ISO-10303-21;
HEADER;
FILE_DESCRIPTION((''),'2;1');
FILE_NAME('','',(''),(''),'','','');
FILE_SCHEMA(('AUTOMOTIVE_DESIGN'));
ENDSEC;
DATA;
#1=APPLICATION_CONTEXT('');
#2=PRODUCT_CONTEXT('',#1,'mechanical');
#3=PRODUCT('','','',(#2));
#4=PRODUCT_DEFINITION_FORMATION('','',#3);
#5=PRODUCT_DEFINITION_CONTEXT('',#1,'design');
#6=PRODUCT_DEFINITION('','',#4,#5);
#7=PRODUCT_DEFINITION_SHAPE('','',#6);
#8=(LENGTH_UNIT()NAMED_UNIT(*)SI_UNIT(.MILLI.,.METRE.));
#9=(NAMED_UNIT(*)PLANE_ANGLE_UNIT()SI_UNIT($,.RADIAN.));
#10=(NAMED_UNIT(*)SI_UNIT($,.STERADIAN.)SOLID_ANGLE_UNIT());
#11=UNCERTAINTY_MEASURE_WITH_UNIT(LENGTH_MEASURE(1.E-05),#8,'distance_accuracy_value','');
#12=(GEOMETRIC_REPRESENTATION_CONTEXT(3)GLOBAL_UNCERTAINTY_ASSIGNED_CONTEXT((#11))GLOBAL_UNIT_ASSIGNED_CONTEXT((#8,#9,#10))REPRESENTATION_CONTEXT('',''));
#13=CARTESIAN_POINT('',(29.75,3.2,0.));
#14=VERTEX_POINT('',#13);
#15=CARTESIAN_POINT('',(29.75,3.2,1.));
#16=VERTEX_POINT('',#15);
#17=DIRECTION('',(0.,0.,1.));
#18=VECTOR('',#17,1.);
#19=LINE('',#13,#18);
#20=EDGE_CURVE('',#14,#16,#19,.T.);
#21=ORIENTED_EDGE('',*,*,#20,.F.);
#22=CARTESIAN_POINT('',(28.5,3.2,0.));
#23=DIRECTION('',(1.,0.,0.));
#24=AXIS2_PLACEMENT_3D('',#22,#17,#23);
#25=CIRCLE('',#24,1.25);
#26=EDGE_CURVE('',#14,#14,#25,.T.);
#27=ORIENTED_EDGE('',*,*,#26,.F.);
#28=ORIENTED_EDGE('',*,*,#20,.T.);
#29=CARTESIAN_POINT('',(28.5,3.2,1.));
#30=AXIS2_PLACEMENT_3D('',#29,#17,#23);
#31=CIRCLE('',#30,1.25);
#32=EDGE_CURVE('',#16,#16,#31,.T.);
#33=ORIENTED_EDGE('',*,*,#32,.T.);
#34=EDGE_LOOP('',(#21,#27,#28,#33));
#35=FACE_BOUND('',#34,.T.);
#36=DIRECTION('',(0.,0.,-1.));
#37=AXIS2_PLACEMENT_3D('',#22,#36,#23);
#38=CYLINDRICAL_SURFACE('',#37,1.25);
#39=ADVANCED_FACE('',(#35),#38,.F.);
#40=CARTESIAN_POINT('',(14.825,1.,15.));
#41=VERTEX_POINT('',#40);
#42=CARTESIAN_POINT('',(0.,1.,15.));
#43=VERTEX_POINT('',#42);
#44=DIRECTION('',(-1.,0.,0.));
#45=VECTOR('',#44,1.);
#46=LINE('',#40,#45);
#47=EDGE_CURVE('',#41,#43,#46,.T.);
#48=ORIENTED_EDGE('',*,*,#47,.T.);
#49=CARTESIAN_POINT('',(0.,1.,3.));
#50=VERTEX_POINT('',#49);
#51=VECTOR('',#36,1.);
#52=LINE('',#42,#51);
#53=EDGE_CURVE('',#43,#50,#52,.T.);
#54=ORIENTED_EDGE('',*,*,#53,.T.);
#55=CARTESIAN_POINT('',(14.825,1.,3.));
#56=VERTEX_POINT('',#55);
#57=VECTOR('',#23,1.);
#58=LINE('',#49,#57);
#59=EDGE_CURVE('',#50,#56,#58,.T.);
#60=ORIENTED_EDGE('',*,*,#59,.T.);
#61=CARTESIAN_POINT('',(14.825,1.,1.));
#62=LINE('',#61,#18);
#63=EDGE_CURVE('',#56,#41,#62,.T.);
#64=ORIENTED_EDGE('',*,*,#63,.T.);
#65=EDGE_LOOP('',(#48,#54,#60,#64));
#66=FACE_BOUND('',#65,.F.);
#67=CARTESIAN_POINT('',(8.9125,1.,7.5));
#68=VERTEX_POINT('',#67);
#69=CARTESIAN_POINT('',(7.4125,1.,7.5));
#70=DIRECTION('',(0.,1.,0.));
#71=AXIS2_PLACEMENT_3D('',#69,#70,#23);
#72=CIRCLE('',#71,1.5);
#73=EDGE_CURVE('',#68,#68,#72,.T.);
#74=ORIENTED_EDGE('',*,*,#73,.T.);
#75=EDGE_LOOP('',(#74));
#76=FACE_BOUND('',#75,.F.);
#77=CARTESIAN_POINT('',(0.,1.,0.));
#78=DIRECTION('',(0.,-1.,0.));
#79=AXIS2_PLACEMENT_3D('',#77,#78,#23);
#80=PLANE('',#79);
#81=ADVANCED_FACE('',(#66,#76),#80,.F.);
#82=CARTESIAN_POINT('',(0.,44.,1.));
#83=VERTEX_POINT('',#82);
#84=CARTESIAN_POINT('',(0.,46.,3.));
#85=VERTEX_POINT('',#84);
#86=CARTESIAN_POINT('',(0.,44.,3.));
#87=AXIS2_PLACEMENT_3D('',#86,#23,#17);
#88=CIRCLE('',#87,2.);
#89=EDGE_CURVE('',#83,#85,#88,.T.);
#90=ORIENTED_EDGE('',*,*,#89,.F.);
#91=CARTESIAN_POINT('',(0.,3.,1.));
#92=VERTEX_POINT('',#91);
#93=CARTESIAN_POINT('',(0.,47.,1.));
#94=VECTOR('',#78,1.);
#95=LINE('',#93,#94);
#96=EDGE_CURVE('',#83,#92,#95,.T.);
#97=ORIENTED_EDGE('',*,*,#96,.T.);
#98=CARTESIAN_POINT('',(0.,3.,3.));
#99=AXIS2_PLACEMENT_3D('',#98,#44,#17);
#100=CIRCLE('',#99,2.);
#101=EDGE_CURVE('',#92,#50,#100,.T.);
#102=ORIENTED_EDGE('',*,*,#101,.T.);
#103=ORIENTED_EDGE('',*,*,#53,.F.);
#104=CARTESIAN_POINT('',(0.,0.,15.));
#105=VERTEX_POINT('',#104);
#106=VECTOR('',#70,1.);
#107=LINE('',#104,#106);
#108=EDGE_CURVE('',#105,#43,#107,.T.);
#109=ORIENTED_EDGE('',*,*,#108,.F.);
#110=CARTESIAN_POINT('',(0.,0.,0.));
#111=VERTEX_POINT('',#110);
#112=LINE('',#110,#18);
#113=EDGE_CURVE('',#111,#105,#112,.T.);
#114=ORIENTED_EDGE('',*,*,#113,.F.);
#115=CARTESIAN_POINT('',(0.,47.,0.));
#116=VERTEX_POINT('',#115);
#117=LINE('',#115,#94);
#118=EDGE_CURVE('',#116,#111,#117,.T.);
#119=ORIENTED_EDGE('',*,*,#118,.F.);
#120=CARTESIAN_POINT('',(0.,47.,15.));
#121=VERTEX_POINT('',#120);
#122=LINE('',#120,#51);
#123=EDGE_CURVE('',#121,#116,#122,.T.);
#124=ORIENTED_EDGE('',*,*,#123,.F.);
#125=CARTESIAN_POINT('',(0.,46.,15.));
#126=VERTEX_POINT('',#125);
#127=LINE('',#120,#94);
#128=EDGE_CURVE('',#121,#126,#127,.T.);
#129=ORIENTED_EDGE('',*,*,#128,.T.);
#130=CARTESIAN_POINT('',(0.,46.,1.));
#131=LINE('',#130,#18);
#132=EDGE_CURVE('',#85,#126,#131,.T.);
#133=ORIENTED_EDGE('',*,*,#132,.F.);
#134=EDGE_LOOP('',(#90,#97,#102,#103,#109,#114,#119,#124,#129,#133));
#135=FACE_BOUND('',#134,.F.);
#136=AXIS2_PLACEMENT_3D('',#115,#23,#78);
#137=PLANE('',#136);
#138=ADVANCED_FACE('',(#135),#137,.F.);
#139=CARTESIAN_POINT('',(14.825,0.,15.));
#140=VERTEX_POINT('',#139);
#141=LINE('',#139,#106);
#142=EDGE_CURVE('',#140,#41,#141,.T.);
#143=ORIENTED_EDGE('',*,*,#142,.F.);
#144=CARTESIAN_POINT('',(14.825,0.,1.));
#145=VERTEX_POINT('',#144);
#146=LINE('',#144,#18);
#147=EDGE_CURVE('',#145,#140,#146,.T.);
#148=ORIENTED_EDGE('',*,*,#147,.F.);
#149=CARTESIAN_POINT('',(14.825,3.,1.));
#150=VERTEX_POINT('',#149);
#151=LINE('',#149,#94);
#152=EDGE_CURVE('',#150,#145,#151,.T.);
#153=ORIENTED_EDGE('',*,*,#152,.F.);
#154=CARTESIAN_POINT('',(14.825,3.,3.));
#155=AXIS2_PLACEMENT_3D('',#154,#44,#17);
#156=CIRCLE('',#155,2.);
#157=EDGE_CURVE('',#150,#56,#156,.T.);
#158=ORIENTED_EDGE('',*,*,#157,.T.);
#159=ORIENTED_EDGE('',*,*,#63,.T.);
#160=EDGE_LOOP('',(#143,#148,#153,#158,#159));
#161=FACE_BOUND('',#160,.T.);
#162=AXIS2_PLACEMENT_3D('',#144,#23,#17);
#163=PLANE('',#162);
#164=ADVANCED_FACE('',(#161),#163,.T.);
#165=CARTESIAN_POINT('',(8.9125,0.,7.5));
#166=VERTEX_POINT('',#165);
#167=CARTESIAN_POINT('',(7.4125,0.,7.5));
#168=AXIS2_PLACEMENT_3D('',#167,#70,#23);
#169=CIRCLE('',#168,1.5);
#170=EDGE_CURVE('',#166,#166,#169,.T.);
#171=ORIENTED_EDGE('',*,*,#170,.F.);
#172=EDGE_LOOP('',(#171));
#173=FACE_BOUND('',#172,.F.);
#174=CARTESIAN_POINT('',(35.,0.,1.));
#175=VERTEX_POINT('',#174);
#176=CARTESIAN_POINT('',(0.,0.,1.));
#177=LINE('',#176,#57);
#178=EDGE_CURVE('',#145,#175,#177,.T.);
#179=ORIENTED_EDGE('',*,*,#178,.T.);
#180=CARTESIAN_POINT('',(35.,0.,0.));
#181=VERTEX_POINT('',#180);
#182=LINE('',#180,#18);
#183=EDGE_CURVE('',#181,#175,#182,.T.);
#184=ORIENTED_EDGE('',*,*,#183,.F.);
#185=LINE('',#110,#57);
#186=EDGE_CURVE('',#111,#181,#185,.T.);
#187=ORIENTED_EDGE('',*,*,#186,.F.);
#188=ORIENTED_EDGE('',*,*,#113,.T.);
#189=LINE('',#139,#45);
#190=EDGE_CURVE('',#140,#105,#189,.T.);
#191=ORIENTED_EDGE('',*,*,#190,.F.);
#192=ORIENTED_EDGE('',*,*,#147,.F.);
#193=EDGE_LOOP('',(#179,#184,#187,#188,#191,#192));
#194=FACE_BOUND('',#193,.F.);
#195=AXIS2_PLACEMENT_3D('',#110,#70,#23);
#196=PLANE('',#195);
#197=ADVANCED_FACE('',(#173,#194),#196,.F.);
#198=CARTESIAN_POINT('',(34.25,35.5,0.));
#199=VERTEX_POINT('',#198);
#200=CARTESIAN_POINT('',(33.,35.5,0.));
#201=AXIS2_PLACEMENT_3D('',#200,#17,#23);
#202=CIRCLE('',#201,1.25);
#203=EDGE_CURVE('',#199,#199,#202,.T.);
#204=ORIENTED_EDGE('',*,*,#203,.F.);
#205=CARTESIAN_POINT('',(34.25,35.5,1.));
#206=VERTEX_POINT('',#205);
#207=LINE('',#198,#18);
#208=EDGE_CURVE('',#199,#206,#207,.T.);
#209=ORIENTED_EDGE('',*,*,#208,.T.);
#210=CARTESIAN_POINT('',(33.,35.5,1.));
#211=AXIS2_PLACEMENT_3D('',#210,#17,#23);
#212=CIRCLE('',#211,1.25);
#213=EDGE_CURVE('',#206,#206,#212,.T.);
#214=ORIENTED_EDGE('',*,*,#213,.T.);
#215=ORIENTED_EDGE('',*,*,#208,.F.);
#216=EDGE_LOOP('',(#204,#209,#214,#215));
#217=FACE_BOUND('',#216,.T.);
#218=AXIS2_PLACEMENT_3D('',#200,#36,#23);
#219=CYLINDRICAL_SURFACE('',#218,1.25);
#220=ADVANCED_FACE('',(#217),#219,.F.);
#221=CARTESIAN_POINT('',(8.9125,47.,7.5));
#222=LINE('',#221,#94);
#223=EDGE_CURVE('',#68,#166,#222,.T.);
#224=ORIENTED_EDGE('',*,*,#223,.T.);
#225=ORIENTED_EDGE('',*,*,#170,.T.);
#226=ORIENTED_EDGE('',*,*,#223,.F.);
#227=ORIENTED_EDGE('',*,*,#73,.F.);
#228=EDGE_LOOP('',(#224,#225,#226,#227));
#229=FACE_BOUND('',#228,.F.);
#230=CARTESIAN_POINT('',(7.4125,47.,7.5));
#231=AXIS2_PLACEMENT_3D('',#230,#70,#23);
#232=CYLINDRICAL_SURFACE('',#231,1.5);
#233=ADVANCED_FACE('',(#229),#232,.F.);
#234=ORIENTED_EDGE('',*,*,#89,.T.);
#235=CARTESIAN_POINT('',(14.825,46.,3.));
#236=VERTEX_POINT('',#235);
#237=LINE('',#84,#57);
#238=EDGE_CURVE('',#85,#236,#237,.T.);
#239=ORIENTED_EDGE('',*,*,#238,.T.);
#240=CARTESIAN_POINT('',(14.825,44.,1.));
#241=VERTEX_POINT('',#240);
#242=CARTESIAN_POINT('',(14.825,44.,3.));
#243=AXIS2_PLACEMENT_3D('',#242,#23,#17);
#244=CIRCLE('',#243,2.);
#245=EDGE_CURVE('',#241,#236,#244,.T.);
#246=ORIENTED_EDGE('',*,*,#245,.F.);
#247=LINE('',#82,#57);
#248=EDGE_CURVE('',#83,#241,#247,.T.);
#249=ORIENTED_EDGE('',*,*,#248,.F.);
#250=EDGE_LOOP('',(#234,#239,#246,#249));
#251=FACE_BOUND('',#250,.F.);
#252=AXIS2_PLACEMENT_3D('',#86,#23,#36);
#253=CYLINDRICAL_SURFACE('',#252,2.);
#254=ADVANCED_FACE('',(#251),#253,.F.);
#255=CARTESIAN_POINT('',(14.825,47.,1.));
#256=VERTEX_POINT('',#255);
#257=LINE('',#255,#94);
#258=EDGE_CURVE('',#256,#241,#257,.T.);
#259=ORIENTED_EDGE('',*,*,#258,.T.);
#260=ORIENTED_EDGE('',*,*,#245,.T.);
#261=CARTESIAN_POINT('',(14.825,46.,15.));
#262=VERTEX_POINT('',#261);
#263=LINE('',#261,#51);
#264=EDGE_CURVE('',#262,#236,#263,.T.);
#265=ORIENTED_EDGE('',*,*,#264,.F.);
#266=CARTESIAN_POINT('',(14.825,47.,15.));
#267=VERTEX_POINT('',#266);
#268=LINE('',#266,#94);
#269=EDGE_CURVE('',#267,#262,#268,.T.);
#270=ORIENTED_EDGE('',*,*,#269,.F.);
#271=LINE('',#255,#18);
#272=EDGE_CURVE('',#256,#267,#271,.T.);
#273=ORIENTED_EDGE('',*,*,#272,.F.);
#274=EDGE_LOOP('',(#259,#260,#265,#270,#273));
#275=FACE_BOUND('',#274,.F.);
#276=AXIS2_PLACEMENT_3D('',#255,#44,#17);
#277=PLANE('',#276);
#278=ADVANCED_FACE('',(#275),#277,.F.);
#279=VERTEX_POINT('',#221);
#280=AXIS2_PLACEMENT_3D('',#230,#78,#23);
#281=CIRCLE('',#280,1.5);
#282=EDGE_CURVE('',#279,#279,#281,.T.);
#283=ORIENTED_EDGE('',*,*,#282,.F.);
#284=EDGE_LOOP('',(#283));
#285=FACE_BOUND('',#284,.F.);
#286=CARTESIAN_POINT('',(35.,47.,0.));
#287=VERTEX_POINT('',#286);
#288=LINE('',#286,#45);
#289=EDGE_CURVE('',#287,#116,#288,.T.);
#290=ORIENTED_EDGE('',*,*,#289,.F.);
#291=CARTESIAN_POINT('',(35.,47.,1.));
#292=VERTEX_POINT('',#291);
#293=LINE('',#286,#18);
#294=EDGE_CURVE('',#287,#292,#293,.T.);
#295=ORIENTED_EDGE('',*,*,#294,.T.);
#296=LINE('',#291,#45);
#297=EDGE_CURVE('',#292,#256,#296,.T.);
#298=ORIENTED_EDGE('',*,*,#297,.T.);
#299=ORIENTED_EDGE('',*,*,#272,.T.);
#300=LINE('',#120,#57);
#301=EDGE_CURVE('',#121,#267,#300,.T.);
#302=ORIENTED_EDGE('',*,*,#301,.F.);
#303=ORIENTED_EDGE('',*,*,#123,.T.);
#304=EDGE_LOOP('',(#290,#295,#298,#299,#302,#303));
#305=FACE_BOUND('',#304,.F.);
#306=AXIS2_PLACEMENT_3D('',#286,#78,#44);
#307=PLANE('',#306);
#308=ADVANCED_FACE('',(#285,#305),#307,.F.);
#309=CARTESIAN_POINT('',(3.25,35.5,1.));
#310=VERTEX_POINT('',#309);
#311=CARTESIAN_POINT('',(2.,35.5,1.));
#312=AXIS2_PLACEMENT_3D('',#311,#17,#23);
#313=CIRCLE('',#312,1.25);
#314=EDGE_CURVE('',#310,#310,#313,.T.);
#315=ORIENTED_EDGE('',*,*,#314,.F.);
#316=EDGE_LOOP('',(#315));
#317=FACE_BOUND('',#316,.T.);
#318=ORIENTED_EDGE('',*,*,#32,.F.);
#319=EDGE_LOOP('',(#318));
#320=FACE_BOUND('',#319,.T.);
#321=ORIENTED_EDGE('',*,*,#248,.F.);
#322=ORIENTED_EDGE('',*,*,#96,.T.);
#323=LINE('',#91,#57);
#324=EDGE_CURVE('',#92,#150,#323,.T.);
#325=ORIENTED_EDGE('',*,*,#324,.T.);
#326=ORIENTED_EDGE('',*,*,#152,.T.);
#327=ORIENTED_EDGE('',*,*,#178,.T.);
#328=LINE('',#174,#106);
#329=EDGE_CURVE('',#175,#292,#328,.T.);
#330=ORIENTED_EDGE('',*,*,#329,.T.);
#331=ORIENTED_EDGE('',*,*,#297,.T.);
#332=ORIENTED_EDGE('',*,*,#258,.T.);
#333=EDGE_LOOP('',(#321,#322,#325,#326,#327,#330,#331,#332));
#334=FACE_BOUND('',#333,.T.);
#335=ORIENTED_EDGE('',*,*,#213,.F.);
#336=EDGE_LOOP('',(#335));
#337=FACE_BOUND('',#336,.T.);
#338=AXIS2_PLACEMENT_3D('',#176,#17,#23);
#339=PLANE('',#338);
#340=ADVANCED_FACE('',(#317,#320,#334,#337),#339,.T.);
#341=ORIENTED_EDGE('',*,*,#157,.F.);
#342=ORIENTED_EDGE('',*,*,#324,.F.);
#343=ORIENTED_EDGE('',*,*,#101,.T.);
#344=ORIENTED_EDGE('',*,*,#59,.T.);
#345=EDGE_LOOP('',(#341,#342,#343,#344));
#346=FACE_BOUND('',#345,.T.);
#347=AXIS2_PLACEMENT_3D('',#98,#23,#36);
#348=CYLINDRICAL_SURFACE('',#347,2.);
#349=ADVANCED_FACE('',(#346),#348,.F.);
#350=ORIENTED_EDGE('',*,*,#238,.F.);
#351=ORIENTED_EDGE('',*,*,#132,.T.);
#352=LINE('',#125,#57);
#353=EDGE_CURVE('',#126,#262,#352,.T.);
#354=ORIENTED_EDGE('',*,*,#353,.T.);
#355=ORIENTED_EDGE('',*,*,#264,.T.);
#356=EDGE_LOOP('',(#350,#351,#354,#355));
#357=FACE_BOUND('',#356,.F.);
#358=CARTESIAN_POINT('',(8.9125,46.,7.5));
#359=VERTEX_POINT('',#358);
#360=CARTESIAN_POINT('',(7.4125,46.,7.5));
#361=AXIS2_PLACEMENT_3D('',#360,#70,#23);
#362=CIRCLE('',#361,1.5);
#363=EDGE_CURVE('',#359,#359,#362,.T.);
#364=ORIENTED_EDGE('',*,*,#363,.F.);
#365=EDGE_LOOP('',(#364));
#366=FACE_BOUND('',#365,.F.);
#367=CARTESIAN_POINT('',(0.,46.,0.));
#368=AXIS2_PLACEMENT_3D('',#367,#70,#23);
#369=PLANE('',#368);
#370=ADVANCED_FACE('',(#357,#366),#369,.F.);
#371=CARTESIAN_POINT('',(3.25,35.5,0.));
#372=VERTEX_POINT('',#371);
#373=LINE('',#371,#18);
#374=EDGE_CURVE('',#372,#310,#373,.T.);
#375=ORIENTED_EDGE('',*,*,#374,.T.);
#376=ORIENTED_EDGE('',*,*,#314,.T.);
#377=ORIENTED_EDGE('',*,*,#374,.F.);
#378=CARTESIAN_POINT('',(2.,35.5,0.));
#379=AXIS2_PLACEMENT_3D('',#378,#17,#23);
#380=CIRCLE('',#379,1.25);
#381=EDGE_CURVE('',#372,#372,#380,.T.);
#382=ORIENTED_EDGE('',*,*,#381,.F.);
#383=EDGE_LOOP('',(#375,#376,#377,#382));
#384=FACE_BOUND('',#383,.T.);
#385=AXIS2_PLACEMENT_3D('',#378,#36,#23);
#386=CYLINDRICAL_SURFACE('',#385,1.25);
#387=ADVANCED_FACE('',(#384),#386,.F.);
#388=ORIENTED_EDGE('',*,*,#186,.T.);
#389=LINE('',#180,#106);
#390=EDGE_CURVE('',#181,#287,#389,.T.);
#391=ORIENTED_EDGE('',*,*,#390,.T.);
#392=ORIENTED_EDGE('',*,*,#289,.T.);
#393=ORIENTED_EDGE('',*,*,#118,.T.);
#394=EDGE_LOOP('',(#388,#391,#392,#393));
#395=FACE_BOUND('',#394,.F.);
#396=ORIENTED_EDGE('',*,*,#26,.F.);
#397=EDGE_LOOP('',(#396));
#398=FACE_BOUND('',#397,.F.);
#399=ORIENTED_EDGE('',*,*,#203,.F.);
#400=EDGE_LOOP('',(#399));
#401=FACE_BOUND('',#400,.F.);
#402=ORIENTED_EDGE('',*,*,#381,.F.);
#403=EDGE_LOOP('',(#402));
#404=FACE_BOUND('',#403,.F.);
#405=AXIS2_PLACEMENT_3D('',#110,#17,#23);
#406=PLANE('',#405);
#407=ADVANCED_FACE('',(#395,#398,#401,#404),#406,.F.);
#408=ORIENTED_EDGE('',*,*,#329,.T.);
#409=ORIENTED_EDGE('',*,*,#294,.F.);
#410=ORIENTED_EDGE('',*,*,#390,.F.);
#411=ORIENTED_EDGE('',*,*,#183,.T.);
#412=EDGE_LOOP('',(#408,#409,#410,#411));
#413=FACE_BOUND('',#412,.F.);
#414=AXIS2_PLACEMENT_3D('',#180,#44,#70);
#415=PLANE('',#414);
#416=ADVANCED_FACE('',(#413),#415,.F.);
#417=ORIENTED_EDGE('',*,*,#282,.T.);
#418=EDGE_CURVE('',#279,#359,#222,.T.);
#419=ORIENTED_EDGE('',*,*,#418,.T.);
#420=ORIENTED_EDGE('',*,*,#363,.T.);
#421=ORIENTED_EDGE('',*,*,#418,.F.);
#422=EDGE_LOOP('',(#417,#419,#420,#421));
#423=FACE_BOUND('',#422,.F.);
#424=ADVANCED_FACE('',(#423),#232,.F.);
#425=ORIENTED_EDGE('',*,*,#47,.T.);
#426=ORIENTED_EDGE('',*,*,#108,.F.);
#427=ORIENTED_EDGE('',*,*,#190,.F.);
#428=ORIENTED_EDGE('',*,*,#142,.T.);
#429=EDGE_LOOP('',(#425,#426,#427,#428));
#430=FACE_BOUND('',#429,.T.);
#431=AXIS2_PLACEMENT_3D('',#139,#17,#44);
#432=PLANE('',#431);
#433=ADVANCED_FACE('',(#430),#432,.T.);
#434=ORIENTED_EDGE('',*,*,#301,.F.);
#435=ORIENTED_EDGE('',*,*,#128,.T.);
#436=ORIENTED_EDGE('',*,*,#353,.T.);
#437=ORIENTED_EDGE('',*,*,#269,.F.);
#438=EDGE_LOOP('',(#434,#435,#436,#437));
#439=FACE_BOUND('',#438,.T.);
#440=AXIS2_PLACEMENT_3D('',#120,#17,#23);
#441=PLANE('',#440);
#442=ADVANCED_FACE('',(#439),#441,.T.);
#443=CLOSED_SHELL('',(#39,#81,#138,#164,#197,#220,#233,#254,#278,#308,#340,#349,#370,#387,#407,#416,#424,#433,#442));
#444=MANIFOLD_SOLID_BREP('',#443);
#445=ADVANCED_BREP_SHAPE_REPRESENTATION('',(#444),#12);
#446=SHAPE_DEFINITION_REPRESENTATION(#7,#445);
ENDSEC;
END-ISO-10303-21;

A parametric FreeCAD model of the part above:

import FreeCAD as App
import Part
import Sketcher

V = App.Vector
Q = App.Units.Quantity


def edges_at(feature, points):
    """Names of the edges that pass closest to the given points."""
    edges = feature.Shape.Edges
    near = lambda p: min(range(len(edges)), key=lambda i: edges[i].distToShape(Part.Vertex(*p))[0])
    return sorted({f"Edge{near(p) + 1}" for p in points})


def add_polygon(sketch, points):
    """Adds a closed chain of lines whose ends are joined by coincident constraints."""
    first, n = sketch.GeometryCount, len(points)
    for a, b in zip(points, points[1:] + points[:1]):
        sketch.addGeometry(Part.LineSegment(App.Vector(*a, 0), App.Vector(*b, 0)), False)
    for i in range(n):
        sketch.addConstraint(Sketcher.Constraint("Coincident", first + i, 2, first + (i + 1) % n, 1))

doc = App.newDocument("Part")
body = doc.addObject("PartDesign::Body", "Body")

# Sketch on XY plane
sketch1 = doc.addObject("Sketcher::SketchObject", "Sketch")
body.addObject(sketch1)
sketch1.AttachmentSupport = (doc.XY_Plane, [""])
sketch1.MapMode = "FlatFace"
add_polygon(sketch1, [(0, 47), (0, 0), (35, 0), (35, 47)])  # lines 0-3
sketch1.addGeometry(Part.Circle(V(28.5, 3.2, 0), V(0, 0, 1), 1.2), False)  # 4
sketch1.addGeometry(Part.Circle(V(2, 35.5, 0), V(0, 0, 1), 1.2), False)  # 5
sketch1.addGeometry(Part.Circle(V(33, 35.5, 0), V(0, 0, 1), 1.2), False)  # 6
sketch1.addConstraint(Sketcher.Constraint("Vertical", 0))
sketch1.addConstraint(Sketcher.Constraint("Horizontal", 1))
sketch1.addConstraint(Sketcher.Constraint("Vertical", 2))
sketch1.addConstraint(Sketcher.Constraint("Horizontal", 3))
sketch1.addConstraint(Sketcher.Constraint("Coincident", 0, 2, -1, 1))
sketch1.addConstraint(Sketcher.Constraint("Equal", 4, 5))
sketch1.addConstraint(Sketcher.Constraint("Equal", 5, 6))
sketch1.addConstraint(Sketcher.Constraint("Horizontal", 5, 3, 6, 3))
sketch1.addConstraint(Sketcher.Constraint("Diameter", 4, Q("2.5 mm")))
sketch1.addConstraint(Sketcher.Constraint("DistanceX", 1, 1, 1, 2, Q("35 mm")))
sketch1.addConstraint(Sketcher.Constraint("DistanceY", 0, 2, 0, 1, Q("47 mm")))
sketch1.addConstraint(Sketcher.Constraint("DistanceX", -1, 1, 5, 3, Q("2 mm")))
sketch1.addConstraint(Sketcher.Constraint("DistanceX", 6, 3, 1, 2, Q("2 mm")))
sketch1.addConstraint(Sketcher.Constraint("DistanceY", -1, 1, 4, 3, Q("3.2 mm")))
sketch1.addConstraint(Sketcher.Constraint("DistanceX", 4, 3, 1, 2, Q("6.5 mm")))
sketch1.addConstraint(Sketcher.Constraint("DistanceY", 6, 3, 2, 2, Q("11.5 mm")))
pad1 = doc.addObject("PartDesign::Pad", "Pad")
body.addObject(pad1)
pad1.Profile = sketch1
pad1.Length = 1

# Sketch on XZ plane
sketch2 = doc.addObject("Sketcher::SketchObject", "Sketch001")
body.addObject(sketch2)
sketch2.AttachmentSupport = (doc.XZ_Plane, [""])
sketch2.MapMode = "FlatFace"
add_polygon(sketch2, [(0, 1), (15, 1), (15, 15), (0, 15)])  # lines 0-3
sketch2.addConstraint(Sketcher.Constraint("Horizontal", 0))
sketch2.addConstraint(Sketcher.Constraint("Vertical", 1))
sketch2.addConstraint(Sketcher.Constraint("Horizontal", 2))
sketch2.addConstraint(Sketcher.Constraint("Vertical", 3))
sketch2.addConstraint(Sketcher.Constraint("PointOnObject", 2, 2, -2))
sketch2.addConstraint(Sketcher.Constraint("DistanceY", 1, 1, 1, 2, Q("14 mm")))
sketch2.addConstraint(Sketcher.Constraint("DistanceX", 0, 1, 0, 2, Q("14.825 mm")))
sketch2.addConstraint(Sketcher.Constraint("DistanceY", -1, 1, 0, 2, Q("1 mm")))
pad2 = doc.addObject("PartDesign::Pad", "Pad001")
body.addObject(pad2)
pad2.Profile = sketch2
pad2.Length = 1
pad2.Reversed = True
doc.recompute()

fillet = doc.addObject("PartDesign::Fillet", "Fillet")
body.addObject(fillet)
fillet.Base = (pad2, edges_at(pad2, [(7.412, 1, 1)]))
fillet.Radius = 2

# Sketch on XZ plane
sketch3 = doc.addObject("Sketcher::SketchObject", "Sketch002")
body.addObject(sketch3)
sketch3.AttachmentSupport = (doc.XZ_Plane, [""])
sketch3.MapMode = "FlatFace"
sketch3.AttachmentOffset = App.Placement(V(0, 0, -47), App.Rotation())
add_polygon(sketch3, [(15, 1), (0, 1), (0, 15), (15, 15)])  # lines 0-3
sketch3.addConstraint(Sketcher.Constraint("Horizontal", 0))
sketch3.addConstraint(Sketcher.Constraint("Vertical", 1))
sketch3.addConstraint(Sketcher.Constraint("Horizontal", 2))
sketch3.addConstraint(Sketcher.Constraint("Vertical", 3))
sketch3.addConstraint(Sketcher.Constraint("PointOnObject", 0, 2, -2))
sketch3.addConstraint(Sketcher.Constraint("DistanceY", 1, 1, 1, 2, Q("14 mm")))
sketch3.addConstraint(Sketcher.Constraint("DistanceY", -1, 1, 0, 2, Q("1 mm")))
sketch3.addConstraint(Sketcher.Constraint("DistanceX", 0, 2, 0, 1, Q("14.825 mm")))
pad3 = doc.addObject("PartDesign::Pad", "Pad002")
body.addObject(pad3)
pad3.Profile = sketch3
pad3.Length = 1
doc.recompute()

fillet2 = doc.addObject("PartDesign::Fillet", "Fillet001")
body.addObject(fillet2)
fillet2.Base = (pad3, edges_at(pad3, [(7.412, 46, 1)]))
fillet2.Radius = 2

# Sketch on XZ plane
sketch4 = doc.addObject("Sketcher::SketchObject", "Sketch003")
body.addObject(sketch4)
sketch4.AttachmentSupport = (doc.XZ_Plane, [""])
sketch4.MapMode = "FlatFace"
sketch4.AttachmentOffset = App.Placement(V(0, 0, -47), App.Rotation())
sketch4.addGeometry(Part.Circle(V(7.4, 7.5, 0), V(0, 0, 1), 1.5), False)
sketch4.addConstraint(Sketcher.Constraint("Diameter", 0, Q("3 mm")))
sketch4.addConstraint(Sketcher.Constraint("DistanceY", -1, 1, 0, 3, Q("7.5 mm")))
sketch4.addConstraint(Sketcher.Constraint("DistanceX", -1, 1, 0, 3, Q("7.4125 mm")))
pocket1 = doc.addObject("PartDesign::Pocket", "Pocket")
body.addObject(pocket1)
pocket1.Profile = sketch4
pocket1.Type = "ThroughAll"
pocket1.Reversed = True

doc.recompute()
